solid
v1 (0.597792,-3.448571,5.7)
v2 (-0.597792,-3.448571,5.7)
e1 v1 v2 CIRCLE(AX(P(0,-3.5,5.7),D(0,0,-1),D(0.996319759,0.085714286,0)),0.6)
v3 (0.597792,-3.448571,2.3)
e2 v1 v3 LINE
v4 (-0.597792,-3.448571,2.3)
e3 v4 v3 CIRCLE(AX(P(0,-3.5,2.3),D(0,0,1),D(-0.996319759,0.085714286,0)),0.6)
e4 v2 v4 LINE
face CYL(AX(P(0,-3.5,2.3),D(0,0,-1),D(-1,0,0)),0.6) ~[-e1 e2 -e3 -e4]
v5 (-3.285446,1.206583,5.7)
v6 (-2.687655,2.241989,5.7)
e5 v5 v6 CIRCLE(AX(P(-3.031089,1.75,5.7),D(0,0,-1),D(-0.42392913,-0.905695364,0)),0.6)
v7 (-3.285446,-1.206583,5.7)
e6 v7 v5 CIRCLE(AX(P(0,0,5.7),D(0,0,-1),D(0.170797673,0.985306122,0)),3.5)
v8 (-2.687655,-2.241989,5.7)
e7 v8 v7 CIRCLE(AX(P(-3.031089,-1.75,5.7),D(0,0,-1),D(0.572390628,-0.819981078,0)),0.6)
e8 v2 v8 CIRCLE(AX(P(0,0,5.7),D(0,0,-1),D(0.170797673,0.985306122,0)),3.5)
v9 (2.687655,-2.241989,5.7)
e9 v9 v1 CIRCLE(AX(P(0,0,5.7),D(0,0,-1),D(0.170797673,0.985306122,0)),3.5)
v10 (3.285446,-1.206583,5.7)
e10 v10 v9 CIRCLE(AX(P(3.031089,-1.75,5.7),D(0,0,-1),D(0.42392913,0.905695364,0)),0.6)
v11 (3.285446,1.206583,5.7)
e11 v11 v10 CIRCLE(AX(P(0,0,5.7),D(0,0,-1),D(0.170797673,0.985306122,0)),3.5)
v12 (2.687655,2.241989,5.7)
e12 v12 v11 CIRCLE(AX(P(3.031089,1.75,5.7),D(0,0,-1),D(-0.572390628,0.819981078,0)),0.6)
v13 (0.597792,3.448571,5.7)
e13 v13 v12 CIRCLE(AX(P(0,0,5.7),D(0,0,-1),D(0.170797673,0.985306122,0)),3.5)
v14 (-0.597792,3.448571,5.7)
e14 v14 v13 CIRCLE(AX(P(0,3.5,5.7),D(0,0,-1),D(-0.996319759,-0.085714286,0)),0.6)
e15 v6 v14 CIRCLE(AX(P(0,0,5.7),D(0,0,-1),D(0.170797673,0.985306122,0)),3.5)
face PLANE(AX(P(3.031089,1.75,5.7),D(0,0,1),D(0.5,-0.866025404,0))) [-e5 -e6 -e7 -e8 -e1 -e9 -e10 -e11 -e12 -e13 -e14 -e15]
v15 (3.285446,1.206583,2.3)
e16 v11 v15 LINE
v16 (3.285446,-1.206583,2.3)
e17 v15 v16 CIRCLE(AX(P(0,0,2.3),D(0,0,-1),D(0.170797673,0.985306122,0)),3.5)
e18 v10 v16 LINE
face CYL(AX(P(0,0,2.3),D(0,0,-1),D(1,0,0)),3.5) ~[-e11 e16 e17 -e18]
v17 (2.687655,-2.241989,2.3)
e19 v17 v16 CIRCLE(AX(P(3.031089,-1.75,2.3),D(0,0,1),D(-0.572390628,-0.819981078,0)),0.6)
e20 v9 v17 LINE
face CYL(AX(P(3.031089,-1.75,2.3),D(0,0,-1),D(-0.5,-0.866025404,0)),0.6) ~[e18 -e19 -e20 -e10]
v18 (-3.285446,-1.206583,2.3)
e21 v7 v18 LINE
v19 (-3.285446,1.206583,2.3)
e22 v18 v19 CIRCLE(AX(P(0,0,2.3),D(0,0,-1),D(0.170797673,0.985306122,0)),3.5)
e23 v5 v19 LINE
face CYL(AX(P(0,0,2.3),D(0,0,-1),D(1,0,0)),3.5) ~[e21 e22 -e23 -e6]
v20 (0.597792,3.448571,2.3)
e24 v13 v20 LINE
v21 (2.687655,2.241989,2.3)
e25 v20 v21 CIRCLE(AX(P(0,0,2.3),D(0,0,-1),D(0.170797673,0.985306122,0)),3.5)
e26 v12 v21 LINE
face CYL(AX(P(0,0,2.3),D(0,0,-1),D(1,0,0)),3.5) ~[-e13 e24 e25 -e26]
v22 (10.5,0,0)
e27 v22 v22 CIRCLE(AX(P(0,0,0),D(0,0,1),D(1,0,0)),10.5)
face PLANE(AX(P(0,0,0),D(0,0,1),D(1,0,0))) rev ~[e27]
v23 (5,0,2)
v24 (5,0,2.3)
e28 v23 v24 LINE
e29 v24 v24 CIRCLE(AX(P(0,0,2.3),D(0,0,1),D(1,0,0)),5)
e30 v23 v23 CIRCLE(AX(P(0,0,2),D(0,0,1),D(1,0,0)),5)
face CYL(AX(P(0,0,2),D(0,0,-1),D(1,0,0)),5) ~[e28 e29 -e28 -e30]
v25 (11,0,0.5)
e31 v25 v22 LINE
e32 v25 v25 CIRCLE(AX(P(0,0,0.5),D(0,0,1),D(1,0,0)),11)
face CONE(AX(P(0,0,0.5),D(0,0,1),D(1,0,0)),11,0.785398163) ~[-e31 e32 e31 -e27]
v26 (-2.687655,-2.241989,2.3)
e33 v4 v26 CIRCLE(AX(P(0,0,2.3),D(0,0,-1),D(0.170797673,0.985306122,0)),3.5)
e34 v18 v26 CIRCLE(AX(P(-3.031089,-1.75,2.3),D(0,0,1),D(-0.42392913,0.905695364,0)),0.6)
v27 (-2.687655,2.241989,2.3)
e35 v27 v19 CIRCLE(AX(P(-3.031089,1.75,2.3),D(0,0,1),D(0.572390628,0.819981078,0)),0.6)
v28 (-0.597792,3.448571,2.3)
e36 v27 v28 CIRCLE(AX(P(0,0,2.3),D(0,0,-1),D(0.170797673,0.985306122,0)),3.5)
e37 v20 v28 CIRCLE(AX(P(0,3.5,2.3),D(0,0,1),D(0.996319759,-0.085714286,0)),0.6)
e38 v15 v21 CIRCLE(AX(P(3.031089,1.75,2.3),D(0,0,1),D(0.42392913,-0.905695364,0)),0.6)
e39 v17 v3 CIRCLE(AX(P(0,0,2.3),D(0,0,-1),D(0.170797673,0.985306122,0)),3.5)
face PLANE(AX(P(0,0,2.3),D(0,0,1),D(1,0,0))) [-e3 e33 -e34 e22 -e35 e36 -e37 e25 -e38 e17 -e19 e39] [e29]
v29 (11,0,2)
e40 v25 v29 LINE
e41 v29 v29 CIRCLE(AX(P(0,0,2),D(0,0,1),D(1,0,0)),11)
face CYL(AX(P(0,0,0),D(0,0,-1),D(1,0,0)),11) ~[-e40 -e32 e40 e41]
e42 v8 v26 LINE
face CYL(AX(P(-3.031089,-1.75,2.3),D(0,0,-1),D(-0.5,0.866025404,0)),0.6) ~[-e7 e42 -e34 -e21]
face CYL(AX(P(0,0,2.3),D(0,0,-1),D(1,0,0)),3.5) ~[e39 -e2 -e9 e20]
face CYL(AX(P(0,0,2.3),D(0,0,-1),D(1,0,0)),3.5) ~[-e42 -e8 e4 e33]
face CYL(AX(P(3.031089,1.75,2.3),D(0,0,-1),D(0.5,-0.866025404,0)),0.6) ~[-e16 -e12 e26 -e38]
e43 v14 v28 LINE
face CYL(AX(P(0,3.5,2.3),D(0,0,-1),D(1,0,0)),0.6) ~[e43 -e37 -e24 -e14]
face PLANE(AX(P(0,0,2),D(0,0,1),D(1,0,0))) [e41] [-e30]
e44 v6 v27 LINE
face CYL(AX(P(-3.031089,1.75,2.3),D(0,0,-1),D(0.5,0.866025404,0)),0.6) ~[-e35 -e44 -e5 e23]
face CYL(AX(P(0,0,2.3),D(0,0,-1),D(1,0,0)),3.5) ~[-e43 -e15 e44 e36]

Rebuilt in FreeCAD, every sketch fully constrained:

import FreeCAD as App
import Part
import Sketcher
from FreeCAD import Vector


def edges_at(feature, points):
    """Names of the edges that pass closest to the given points."""
    edges = feature.Shape.Edges
    near = lambda p: min(range(len(edges)), key=lambda i: edges[i].distToShape(Part.Vertex(*p))[0])
    return sorted({f"Edge{near(p) + 1}" for p in points})

doc = App.newDocument("Part")
body = doc.addObject("PartDesign::Body", "Body")

sketch1 = body.newObject("Sketcher::SketchObject", "Sketch")
sketch1.AttachmentSupport = (doc.getObject("XY_Plane"), [""])
sketch1.MapMode = "FlatFace"
sketch1.addGeometry(Part.Circle(Vector(0, 0, 0), Vector(0, 0, 1), 11), False)
sketch1.addConstraint([
    Sketcher.Constraint("Coincident", 0, 3, -1, 1),
    Sketcher.Constraint("Diameter", 0, 22.0),
])
pad1 = body.newObject("PartDesign::Pad", "Pad")
pad1.Profile = sketch1
pad1.Length = 2
doc.recompute()

chamfer = body.newObject("PartDesign::Chamfer", "Chamfer")
chamfer.Base = (pad1, edges_at(pad1, [(-11, 0, 0)]))
chamfer.Size = 0.5

sketch2 = body.newObject("Sketcher::SketchObject", "Sketch001")
sketch2.AttachmentSupport = (doc.getObject("XY_Plane"), [""])
sketch2.MapMode = "FlatFace"
sketch2.AttachmentOffset = App.Placement(Vector(0, 0, 2), App.Rotation())
sketch2.addGeometry(Part.Circle(Vector(0, 0, 0), Vector(0, 0, 1), 5), False)
sketch2.addConstraint([
    Sketcher.Constraint("Coincident", 0, 3, -1, 1),
    Sketcher.Constraint("Diameter", 0, 10.0),
])
pad2 = body.newObject("PartDesign::Pad", "Pad001")
pad2.Profile = sketch2
pad2.Length = 0.3

sketch3 = body.newObject("Sketcher::SketchObject", "Sketch002")
sketch3.AttachmentSupport = (doc.getObject("XY_Plane"), [""])
sketch3.MapMode = "FlatFace"
sketch3.AttachmentOffset = App.Placement(Vector(0, 0, 2.3), App.Rotation())
sketch3.addGeometry(Part.Circle(Vector(0, 0, 0), Vector(0, 0, 1), 3.5), False)
sketch3.addConstraint([
    Sketcher.Constraint("Coincident", 0, 3, -1, 1),
    Sketcher.Constraint("Diameter", 0, 7.0),
])
pad3 = body.newObject("PartDesign::Pad", "Pad002")
pad3.Profile = sketch3
pad3.Length = 3.4

sketch4 = body.newObject("Sketcher::SketchObject", "Sketch003")
sketch4.AttachmentSupport = (doc.getObject("XY_Plane"), [""])
sketch4.MapMode = "FlatFace"
sketch4.AttachmentOffset = App.Placement(Vector(0, 0, 2.3), App.Rotation())
sketch4.addGeometry(Part.Circle(Vector(0, 3.5, 0), Vector(0, 0, 1), 0.6), False)
sketch4.addConstraint([
    Sketcher.Constraint("PointOnObject", 0, 3, -2),
    Sketcher.Constraint("Diameter", 0, 1.2),
    Sketcher.Constraint("DistanceY", -1, 1, 0, 3, 3.5),
])
pad4 = body.newObject("PartDesign::Pad", "Pad003")
pad4.Profile = sketch4
pad4.Length = 3.4
doc.recompute()

polarpattern = body.newObject("PartDesign::PolarPattern", "PolarPattern")
polarpattern.Originals = [pad4]
polarpattern.Axis = (doc.getObject("Z_Axis"), [""])
polarpattern.Angle = 360
polarpattern.Occurrences = 6
body.Tip = polarpattern

doc.recompute()
